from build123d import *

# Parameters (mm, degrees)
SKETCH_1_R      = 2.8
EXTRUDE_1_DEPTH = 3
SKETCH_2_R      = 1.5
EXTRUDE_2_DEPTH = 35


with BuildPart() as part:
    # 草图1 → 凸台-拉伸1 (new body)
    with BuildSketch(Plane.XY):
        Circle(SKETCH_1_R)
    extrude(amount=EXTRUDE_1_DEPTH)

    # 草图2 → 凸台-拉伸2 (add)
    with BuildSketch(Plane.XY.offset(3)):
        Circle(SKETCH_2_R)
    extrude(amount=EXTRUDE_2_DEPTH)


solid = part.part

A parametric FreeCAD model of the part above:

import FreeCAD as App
import Part
import Sketcher

doc = App.newDocument("Part")
body = doc.addObject("PartDesign::Body", "Body")

# Sketch on XY plane
sketch1 = doc.addObject("Sketcher::SketchObject", "Sketch")
body.addObject(sketch1)
sketch1.AttachmentSupport = (doc.XY_Plane, [""])
sketch1.MapMode = "FlatFace"
sketch1.addGeometry(Part.Circle(App.Vector(0, 0, 0), App.Vector(0, 0, 1), 2.8), False)
sketch1.addConstraint([
    Sketcher.Constraint("Coincident", 0, 3, -1, 1),
    Sketcher.Constraint("Diameter", 0, 5.6),
])
pad1 = doc.addObject("PartDesign::Pad", "Pad")
body.addObject(pad1)
pad1.Profile = sketch1
pad1.Length = 3

# Sketch on XY plane
sketch2 = doc.addObject("Sketcher::SketchObject", "Sketch001")
body.addObject(sketch2)
sketch2.AttachmentSupport = (doc.XY_Plane, [""])
sketch2.MapMode = "FlatFace"
sketch2.AttachmentOffset = App.Placement(App.Vector(0, 0, 3), App.Rotation())
sketch2.addGeometry(Part.Circle(App.Vector(0, 0, 0), App.Vector(0, 0, 1), 1.5), False)
sketch2.addConstraint([
    Sketcher.Constraint("Coincident", 0, 3, -1, 1),
    Sketcher.Constraint("Diameter", 0, 3.0),
])
pad2 = doc.addObject("PartDesign::Pad", "Pad001")
body.addObject(pad2)
pad2.Profile = sketch2
pad2.Length = 35

doc.recompute()
